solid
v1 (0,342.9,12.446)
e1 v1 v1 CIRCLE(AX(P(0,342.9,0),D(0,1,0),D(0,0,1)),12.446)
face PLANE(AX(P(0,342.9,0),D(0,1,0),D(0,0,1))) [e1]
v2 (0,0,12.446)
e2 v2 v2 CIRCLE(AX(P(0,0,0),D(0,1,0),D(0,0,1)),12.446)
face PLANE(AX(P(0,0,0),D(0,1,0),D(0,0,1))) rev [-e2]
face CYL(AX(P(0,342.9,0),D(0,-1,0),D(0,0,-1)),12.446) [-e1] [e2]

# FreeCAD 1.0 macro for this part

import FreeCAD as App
import Part
import Sketcher
from FreeCAD import Vector
Q = App.Units.Quantity

doc = App.newDocument("Part")
body = doc.addObject("PartDesign::Body", "Body")

sketch1 = doc.addObject("Sketcher::SketchObject", "Sketch")
body.addObject(sketch1)
sketch1.AttachmentSupport = (doc.XZ_Plane, [""])
sketch1.MapMode = "FlatFace"
sketch1.addGeometry(Part.Circle(Vector(0, 0, 0), Vector(0, 0, 1), 12), False)
sketch1.addConstraint([
    Sketcher.Constraint("Coincident", 0, 3, -1, 1),
    Sketcher.Constraint("Diameter", 0, Q("0.98 in")),
])
pad1 = doc.addObject("PartDesign::Pad", "Pad")
body.addObject(pad1)
pad1.Profile = sketch1
pad1.Length = Q("13.5 in")
pad1.Reversed = True

doc.recompute()
